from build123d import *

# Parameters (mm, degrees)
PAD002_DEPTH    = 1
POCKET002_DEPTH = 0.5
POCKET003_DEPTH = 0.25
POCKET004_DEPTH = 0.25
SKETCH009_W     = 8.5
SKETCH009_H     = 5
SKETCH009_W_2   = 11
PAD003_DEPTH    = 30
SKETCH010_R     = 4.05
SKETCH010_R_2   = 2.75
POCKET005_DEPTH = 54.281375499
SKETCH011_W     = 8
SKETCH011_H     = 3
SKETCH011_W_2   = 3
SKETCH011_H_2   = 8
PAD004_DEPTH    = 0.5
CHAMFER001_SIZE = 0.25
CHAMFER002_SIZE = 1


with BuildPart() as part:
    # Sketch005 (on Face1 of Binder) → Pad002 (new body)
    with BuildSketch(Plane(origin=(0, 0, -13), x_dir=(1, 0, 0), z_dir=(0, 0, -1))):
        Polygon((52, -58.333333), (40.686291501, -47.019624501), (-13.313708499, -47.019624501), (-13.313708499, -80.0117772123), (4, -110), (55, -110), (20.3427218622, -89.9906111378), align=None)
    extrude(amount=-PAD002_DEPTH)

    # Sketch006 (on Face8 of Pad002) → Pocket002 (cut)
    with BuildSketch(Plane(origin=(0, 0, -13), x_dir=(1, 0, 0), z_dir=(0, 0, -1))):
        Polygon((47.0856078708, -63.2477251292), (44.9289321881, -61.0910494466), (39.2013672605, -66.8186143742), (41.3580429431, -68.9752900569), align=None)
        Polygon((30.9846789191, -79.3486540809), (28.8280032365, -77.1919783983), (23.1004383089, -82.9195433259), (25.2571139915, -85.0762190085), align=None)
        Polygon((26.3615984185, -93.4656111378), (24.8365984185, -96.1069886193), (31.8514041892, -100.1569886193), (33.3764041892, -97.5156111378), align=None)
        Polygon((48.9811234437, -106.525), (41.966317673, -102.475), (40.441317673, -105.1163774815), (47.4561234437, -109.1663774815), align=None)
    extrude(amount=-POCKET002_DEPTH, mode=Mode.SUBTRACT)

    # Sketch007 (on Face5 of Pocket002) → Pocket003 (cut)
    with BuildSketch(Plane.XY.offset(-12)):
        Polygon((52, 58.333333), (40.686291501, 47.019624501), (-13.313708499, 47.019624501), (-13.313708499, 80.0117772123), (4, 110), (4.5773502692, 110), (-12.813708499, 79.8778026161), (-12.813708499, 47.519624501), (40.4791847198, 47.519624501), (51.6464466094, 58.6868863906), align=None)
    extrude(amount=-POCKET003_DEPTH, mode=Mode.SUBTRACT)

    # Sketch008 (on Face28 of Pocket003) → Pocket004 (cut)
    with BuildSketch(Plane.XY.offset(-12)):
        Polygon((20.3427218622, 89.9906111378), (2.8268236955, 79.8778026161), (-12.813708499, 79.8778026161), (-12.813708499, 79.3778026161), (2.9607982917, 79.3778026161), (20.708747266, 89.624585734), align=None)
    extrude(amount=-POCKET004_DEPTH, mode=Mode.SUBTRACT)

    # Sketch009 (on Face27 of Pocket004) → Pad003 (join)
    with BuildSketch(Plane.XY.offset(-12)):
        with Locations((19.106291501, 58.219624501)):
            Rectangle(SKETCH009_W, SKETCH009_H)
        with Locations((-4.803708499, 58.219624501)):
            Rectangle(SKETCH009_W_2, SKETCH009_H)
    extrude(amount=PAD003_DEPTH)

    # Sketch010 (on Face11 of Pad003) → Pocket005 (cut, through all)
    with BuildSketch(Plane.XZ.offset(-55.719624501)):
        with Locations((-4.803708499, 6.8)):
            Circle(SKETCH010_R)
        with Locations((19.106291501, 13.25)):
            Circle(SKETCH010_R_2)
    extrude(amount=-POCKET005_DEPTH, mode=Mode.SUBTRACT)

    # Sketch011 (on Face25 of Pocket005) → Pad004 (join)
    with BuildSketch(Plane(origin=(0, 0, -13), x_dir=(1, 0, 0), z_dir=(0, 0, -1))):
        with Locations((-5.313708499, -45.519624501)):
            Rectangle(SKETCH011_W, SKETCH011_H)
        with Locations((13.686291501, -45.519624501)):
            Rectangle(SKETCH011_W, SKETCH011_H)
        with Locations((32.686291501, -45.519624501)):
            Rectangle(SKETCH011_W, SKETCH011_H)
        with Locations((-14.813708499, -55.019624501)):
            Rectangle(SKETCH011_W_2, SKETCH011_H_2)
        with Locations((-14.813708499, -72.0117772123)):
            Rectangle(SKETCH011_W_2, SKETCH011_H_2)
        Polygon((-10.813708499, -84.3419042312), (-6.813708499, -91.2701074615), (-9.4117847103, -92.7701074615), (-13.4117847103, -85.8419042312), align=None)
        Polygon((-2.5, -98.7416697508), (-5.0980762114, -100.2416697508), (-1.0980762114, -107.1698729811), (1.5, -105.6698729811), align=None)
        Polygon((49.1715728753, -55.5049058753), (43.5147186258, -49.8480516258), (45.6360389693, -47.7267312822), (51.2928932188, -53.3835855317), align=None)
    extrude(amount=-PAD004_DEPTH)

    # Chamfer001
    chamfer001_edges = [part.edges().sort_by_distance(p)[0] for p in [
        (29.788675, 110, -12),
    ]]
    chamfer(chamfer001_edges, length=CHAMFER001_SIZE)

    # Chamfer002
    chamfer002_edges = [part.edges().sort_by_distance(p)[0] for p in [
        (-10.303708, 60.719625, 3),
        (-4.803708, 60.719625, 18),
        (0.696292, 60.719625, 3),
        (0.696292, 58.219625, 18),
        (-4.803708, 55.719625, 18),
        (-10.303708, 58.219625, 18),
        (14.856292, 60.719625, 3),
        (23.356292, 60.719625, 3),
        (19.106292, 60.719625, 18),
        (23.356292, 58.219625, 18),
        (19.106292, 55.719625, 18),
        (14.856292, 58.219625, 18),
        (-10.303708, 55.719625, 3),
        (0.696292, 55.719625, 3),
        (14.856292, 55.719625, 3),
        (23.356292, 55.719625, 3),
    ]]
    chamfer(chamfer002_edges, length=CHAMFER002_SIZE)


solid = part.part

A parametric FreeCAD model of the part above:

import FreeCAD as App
import Part
import Sketcher

V = App.Vector
Q = App.Units.Quantity


def edges_at(feature, points):
    """Names of the edges that pass closest to the given points."""
    edges = feature.Shape.Edges
    near = lambda p: min(range(len(edges)), key=lambda i: edges[i].distToShape(Part.Vertex(*p))[0])
    return sorted({f"Edge{near(p) + 1}" for p in points})


def add_polygon(sketch, points):
    """Adds a closed chain of lines whose ends are joined by coincident constraints."""
    first, n = sketch.GeometryCount, len(points)
    for a, b in zip(points, points[1:] + points[:1]):
        sketch.addGeometry(Part.LineSegment(App.Vector(*a, 0), App.Vector(*b, 0)), False)
    for i in range(n):
        sketch.addConstraint(Sketcher.Constraint("Coincident", first + i, 2, first + (i + 1) % n, 1))

doc = App.newDocument("Part")
params = doc.addObject("Spreadsheet::Sheet", "Params")
for row, (alias, value) in enumerate([
    ("sketch1_width", "54 mm"),
    ("sketch1_width2", "51 mm"),
    ("sketch1_length", "16 mm"),
    ("pad1_length", "1 mm"),
    ("sketch2_length", "8.1 mm"),
    ("sketch2_length2", "3.05 mm"),
    ("pocket1_length", "0.5 mm"),
    ("sketch3_width", "54 mm"),
    ("sketch3_length", "16 mm"),
    ("sketch3_length2", "0.5 mm"),
    ("pocket2_length", "0.25 mm"),
    ("sketch4_height", "0.5 mm"),
    ("pocket3_length", "0.25 mm"),
    ("sketch5_width", "11 mm"),
    ("sketch5_height", "5 mm"),
    ("sketch5_width2", "8.5 mm"),
    ("pad2_length", "30 mm"),
    ("sketch6_diameter", "8.1 mm"),
    ("sketch6_diameter2", "5.5 mm"),
    ("sketch7_width", "8 mm"),
    ("sketch7_width2", "3 mm"),
    ("sketch7_length", "8 mm"),
    ("sketch7_length2", "3 mm"),
    ("pad3_length", "0.5 mm"),
    ("chamfer_size", "0.25 mm"),
    ("chamfer2_size", "1 mm"),
], start=1):
    params.set(f"A{row}", alias)
    params.set(f"B{row}", "=" + value)
    params.setAlias(f"B{row}", alias)

body = doc.addObject("PartDesign::Body", "Body")

sketch1 = body.newObject("Sketcher::SketchObject", "Sketch")
sketch1.AttachmentSupport = (doc.getObject("XY_Plane"), [""])
sketch1.MapMode = "FlatFace"
sketch1.AttachmentOffset = App.Placement(V(0, 0, -13), App.Rotation())
add_polygon(sketch1, [(52, 58), (41, 47), (-13, 47), (-13, 80), (4, 110), (55, 110), (20, 90)])
sketch1.addConstraint([
    Sketcher.Constraint("Horizontal", 1),
    Sketcher.Constraint("Vertical", 2),
    Sketcher.Constraint("Horizontal", 4),
    Sketcher.Constraint("Perpendicular", 0, 6),
    Sketcher.Constraint("DistanceX", 1, 2, 1, 1, 54.0),
    Sketcher.Constraint("DistanceX", 4, 1, 4, 2, 51.0),
    Sketcher.Constraint("Angle", 0, Q("-135 deg")),
    Sketcher.Constraint("Angle", 3, Q("60 deg")),
    Sketcher.Constraint("Angle", 5, Q("-150 deg")),
    Sketcher.Constraint("Distance", 0, 16.0),
    Sketcher.Constraint("DistanceX", -1, 1, 3, 2, 4.0),
    Sketcher.Constraint("DistanceY", -1, 1, 3, 2, 110.0),
    Sketcher.Constraint("DistanceX", -1, 1, 6, 2, 52.0),
    Sketcher.Constraint("DistanceY", 2, 1, 2, 2, 32.992153),
])
sketch1.setExpression("Constraints[11]", "Params.sketch1_width")
sketch1.setExpression("Constraints[12]", "Params.sketch1_width2")
sketch1.setExpression("Constraints[16]", "Params.sketch1_length")
pad1 = body.newObject("PartDesign::Pad", "Pad")
pad1.Profile = sketch1
pad1.setExpression("Length", "Params.pad1_length")

sketch2 = body.newObject("Sketcher::SketchObject", "Sketch001")
sketch2.AttachmentSupport = (doc.getObject("XY_Plane"), [""])
sketch2.MapMode = "FlatFace"
sketch2.AttachmentOffset = App.Placement(V(0, 0, -13), App.Rotation())
add_polygon(sketch2, [(47.1, 63.2), (44.9, 61.1), (39.2, 66.8), (41.4, 69)])
add_polygon(sketch2, [(31, 79.3), (28.8, 77.2), (23.1, 82.9), (25.3, 85.1)])
add_polygon(sketch2, [(26.4, 93.5), (24.8, 96.1), (31.9, 100.2), (33.4, 97.5)])
add_polygon(sketch2, [(49, 106.5), (42, 102.5), (40.4, 105.1), (47.5, 109.2)])
sketch2.addConstraint([
    Sketcher.Constraint("Perpendicular", 0, 1),
    Sketcher.Constraint("Perpendicular", 1, 2),
    Sketcher.Constraint("Perpendicular", 2, 3),
    Sketcher.Constraint("Perpendicular", 3, 4),
    Sketcher.Constraint("Perpendicular", 4, 5),
    Sketcher.Constraint("Perpendicular", 5, 6),
    Sketcher.Constraint("Perpendicular", 6, 7),
    Sketcher.Constraint("Perpendicular", 8, 9),
    Sketcher.Constraint("Perpendicular", 9, 10),
    Sketcher.Constraint("Perpendicular", 10, 11),
    Sketcher.Constraint("Parallel", 11, 12),
    Sketcher.Constraint("Perpendicular", 12, 13),
    Sketcher.Constraint("Perpendicular", 13, 14),
    Sketcher.Constraint("Perpendicular", 14, 15),
    Sketcher.Constraint("Equal", 2, 4),
    Sketcher.Constraint("Equal", 3, 5),
    Sketcher.Constraint("Equal", 6, 8),
    Sketcher.Constraint("Equal", 7, 9),
    Sketcher.Constraint("Equal", 11, 12),
    Sketcher.Constraint("Equal", 10, 13),
    Sketcher.Constraint("Angle", 0, Q("-135 deg")),
    Sketcher.Constraint("Angle", 8, Q("120 deg")),
    Sketcher.Constraint("Distance", 1, 8.1),
    Sketcher.Constraint("Distance", 0, 3.05),
    Sketcher.Constraint("DistanceY", -1, 1, 12, 2, 102.475),
    Sketcher.Constraint("DistanceX", -1, 1, 8, 2, 24.836598),
    Sketcher.Constraint("DistanceY", 2, 2, 8, 2, 27.131699),
    Sketcher.Constraint("DistanceX", 4, 2, 9, 2, 3.023401),
    Sketcher.Constraint("DistanceY", -1, 1, 0, 2, 61.091049),
    Sketcher.Constraint("DistanceY", -1, 1, 4, 2, 77.191978),
    Sketcher.Constraint("DistanceX", 4, 2, 2, 2, 12.53004),
    Sketcher.Constraint("DistanceX", 11, 2, 12, 2, 15.604719),
])
sketch2.setExpression("Constraints[38]", "Params.sketch2_length")
sketch2.setExpression("Constraints[39]", "Params.sketch2_length2")
pocket1 = body.newObject("PartDesign::Pocket", "Pocket")
pocket1.Profile = sketch2
pocket1.setExpression("Length", "Params.pocket1_length")
pocket1.Reversed = True

sketch3 = body.newObject("Sketcher::SketchObject", "Sketch002")
sketch3.AttachmentSupport = (doc.getObject("XY_Plane"), [""])
sketch3.MapMode = "FlatFace"
sketch3.AttachmentOffset = App.Placement(V(0, 0, -12), App.Rotation())
add_polygon(sketch3, [(40.7, 47), (52, 58.3), (51.6, 58.7), (40.5, 47.5), (-12.8, 47.5), (-12.8, 79.9), (4.6, 110), (4, 110), (-13.3, 80), (-13.3, 47)])
sketch3.addConstraint([
    Sketcher.Constraint("Horizontal", 3),
    Sketcher.Constraint("Vertical", 4),
    Sketcher.Constraint("Horizontal", 6),
    Sketcher.Constraint("Vertical", 8),
    Sketcher.Constraint("Horizontal", 9),
    Sketcher.Constraint("Perpendicular", 0, 1),
    Sketcher.Constraint("Perpendicular", 1, 2),
    Sketcher.Constraint("Parallel", 5, 7),
    Sketcher.Constraint("DistanceX", 9, 1, 9, 2, 54.0),
    Sketcher.Constraint("Angle", 0, Q("45 deg")),
    Sketcher.Constraint("Angle", 5, Q("60 deg")),
    Sketcher.Constraint("Distance", 0, 16.0),
    Sketcher.Constraint("DistanceX", -1, 1, 0, 2, 52.0),
    Sketcher.Constraint("DistanceY", -1, 1, 5, 2, 110.0),
    Sketcher.Constraint("DistanceX", -1, 1, 6, 2, 4.0),
    Sketcher.Constraint("Distance", 1, 0.5),
    Sketcher.Constraint("DistanceX", 7, 2, 4, 2, 0.5),
    Sketcher.Constraint("DistanceY", 8, 2, 3, 2, 0.5),
    Sketcher.Constraint("DistanceX", 6, 2, 6, 1, 0.57735),
    Sketcher.Constraint("DistanceY", 4, 1, 4, 2, 32.358178),
])
sketch3.setExpression("Constraints[18]", "Params.sketch3_width")
sketch3.setExpression("Constraints[21]", "Params.sketch3_length")
sketch3.setExpression("Constraints[25]", "Params.sketch3_length2")
pocket2 = body.newObject("PartDesign::Pocket", "Pocket001")
pocket2.Profile = sketch3
pocket2.setExpression("Length", "Params.pocket2_length")

sketch4 = body.newObject("Sketcher::SketchObject", "Sketch003")
sketch4.AttachmentSupport = (doc.getObject("XY_Plane"), [""])
sketch4.MapMode = "FlatFace"
sketch4.AttachmentOffset = App.Placement(V(0, 0, -12), App.Rotation())
add_polygon(sketch4, [(20.3, 90), (2.8, 79.9), (-12.8, 79.9), (-12.8, 79.4), (3, 79.4), (20.7, 89.6)])
sketch4.addConstraint([
    Sketcher.Constraint("Horizontal", 1),
    Sketcher.Constraint("Vertical", 2),
    Sketcher.Constraint("Horizontal", 3),
    Sketcher.Constraint("Parallel", 0, 4),
    Sketcher.Constraint("Angle", 0, Q("-150 deg")),
    Sketcher.Constraint("Angle", 5, Q("135 deg")),
    Sketcher.Constraint("DistanceY", 2, 2, 2, 1, 0.5),
    Sketcher.Constraint("DistanceX", -1, 1, 3, 2, 2.960798),
    Sketcher.Constraint("DistanceX", 0, 2, 5, 2, 17.515898),
    Sketcher.Constraint("Distance", 5, 0.517638),
    Sketcher.Constraint("DistanceX", 1, 2, 1, 1, 15.640532),
    Sketcher.Constraint("DistanceY", -1, 1, 5, 2, 89.990611),
])
sketch4.setExpression("Constraints[12]", "Params.sketch4_height")
pocket3 = body.newObject("PartDesign::Pocket", "Pocket002")
pocket3.Profile = sketch4
pocket3.setExpression("Length", "Params.pocket3_length")

sketch5 = body.newObject("Sketcher::SketchObject", "Sketch004")
sketch5.AttachmentSupport = (doc.getObject("XY_Plane"), [""])
sketch5.MapMode = "FlatFace"
sketch5.AttachmentOffset = App.Placement(V(0, 0, -12), App.Rotation())
add_polygon(sketch5, [(15, 61), (15, 56), (23, 56), (23, 61)])
add_polygon(sketch5, [(-10, 61), (-10, 56), (1, 56), (1, 61)])
sketch5.addConstraint([
    Sketcher.Constraint("Vertical", 0),
    Sketcher.Constraint("Horizontal", 1),
    Sketcher.Constraint("Vertical", 2),
    Sketcher.Constraint("Horizontal", 3),
    Sketcher.Constraint("Vertical", 4),
    Sketcher.Constraint("Horizontal", 5),
    Sketcher.Constraint("Vertical", 6),
    Sketcher.Constraint("Horizontal", 7),
    Sketcher.Constraint("Horizontal", 1, 2, 4, 2),
    Sketcher.Constraint("Horizontal", 3, 2, 6, 2),
    Sketcher.Constraint("DistanceX", 5, 1, 5, 2, 11.0),
    Sketcher.Constraint("DistanceY", 0, 2, 0, 1, 5.0),
    Sketcher.Constraint("DistanceX", 1, 1, 1, 2, 8.5),
    Sketcher.Constraint("DistanceX", 4, 2, 0, 2, 25.16),
    Sketcher.Constraint("DistanceX", -1, 1, 0, 2, 14.856292),
    Sketcher.Constraint("DistanceY", -1, 1, 0, 2, 55.719625),
])
sketch5.setExpression("Constraints[18]", "Params.sketch5_width")
sketch5.setExpression("Constraints[19]", "Params.sketch5_height")
sketch5.setExpression("Constraints[20]", "Params.sketch5_width2")
pad2 = body.newObject("PartDesign::Pad", "Pad001")
pad2.Profile = sketch5
pad2.setExpression("Length", "Params.pad2_length")

sketch6 = body.newObject("Sketcher::SketchObject", "Sketch005")
sketch6.AttachmentSupport = (doc.getObject("XZ_Plane"), [""])
sketch6.MapMode = "FlatFace"
sketch6.AttachmentOffset = App.Placement(V(0, 0, -55.719625), App.Rotation())
sketch6.addGeometry([
    Part.Circle(V(-4.8, 6.8, 0), V(0, 0, 1), 4),
    Part.Circle(V(19.1, 13.2, 0), V(0, 0, 1), 2.8),
], False)
sketch6.addConstraint([
    Sketcher.Constraint("Diameter", 0, 8.1),
    Sketcher.Constraint("Diameter", 1, 5.5),
    Sketcher.Constraint("DistanceY", -1, 1, 0, 3, 6.8),
    Sketcher.Constraint("DistanceY", -1, 1, 1, 3, 13.25),
    Sketcher.Constraint("DistanceX", 0, 3, 1, 3, 23.91),
    Sketcher.Constraint("DistanceX", 0, 3, -1, 1, 4.803708),
])
sketch6.setExpression("Constraints[0]", "Params.sketch6_diameter")
sketch6.setExpression("Constraints[1]", "Params.sketch6_diameter2")
pocket4 = body.newObject("PartDesign::Pocket", "Pocket003")
pocket4.Profile = sketch6
pocket4.Type = "ThroughAll"

sketch7 = body.newObject("Sketcher::SketchObject", "Sketch006")
sketch7.AttachmentSupport = (doc.getObject("XY_Plane"), [""])
sketch7.MapMode = "FlatFace"
sketch7.AttachmentOffset = App.Placement(V(0, 0, -13), App.Rotation())
add_polygon(sketch7, [(-9.3, 44), (-9.3, 47), (-1.3, 47), (-1.3, 44)])
add_polygon(sketch7, [(9.7, 44), (9.7, 47), (17.7, 47), (17.7, 44)])
add_polygon(sketch7, [(28.7, 44), (28.7, 47), (36.7, 47), (36.7, 44)])
add_polygon(sketch7, [(-16.3, 51), (-16.3, 59), (-13.3, 59), (-13.3, 51)])
add_polygon(sketch7, [(-16.3, 68), (-16.3, 76), (-13.3, 76), (-13.3, 68)])
add_polygon(sketch7, [(-6.8, 91.3), (-10.8, 84.3), (-13.4, 85.8), (-9.4, 92.8)])
add_polygon(sketch7, [(-2.5, 98.7), (-5.1, 100.2), (-1.1, 107.2), (1.5, 105.7)])
add_polygon(sketch7, [(43.5, 49.8), (49.2, 55.5), (51.3, 53.4), (45.6, 47.7)])
sketch7.addConstraint([
    Sketcher.Constraint("Vertical", 0),
    Sketcher.Constraint("Horizontal", 1),
    Sketcher.Constraint("Vertical", 2),
    Sketcher.Constraint("Horizontal", 3),
    Sketcher.Constraint("Vertical", 4),
    Sketcher.Constraint("Horizontal", 5),
    Sketcher.Constraint("Vertical", 6),
    Sketcher.Constraint("Horizontal", 7),
    Sketcher.Constraint("Vertical", 8),
    Sketcher.Constraint("Horizontal", 9),
    Sketcher.Constraint("Vertical", 10),
    Sketcher.Constraint("Horizontal", 11),
    Sketcher.Constraint("Vertical", 12),
    Sketcher.Constraint("Horizontal", 13),
    Sketcher.Constraint("Vertical", 14),
    Sketcher.Constraint("Horizontal", 15),
    Sketcher.Constraint("Vertical", 16),
    Sketcher.Constraint("Horizontal", 17),
    Sketcher.Constraint("Vertical", 18),
    Sketcher.Constraint("Horizontal", 19),
    Sketcher.Constraint("Perpendicular", 20, 21),
    Sketcher.Constraint("Perpendicular", 21, 22),
    Sketcher.Constraint("Perpendicular", 22, 23),
    Sketcher.Constraint("Parallel", 23, 24),
    Sketcher.Constraint("Perpendicular", 24, 25),
    Sketcher.Constraint("Perpendicular", 25, 26),
    Sketcher.Constraint("Perpendicular", 26, 27),
    Sketcher.Constraint("Perpendicular", 28, 29),
    Sketcher.Constraint("Perpendicular", 29, 30),
    Sketcher.Constraint("Perpendicular", 30, 31),
    Sketcher.Constraint("Horizontal", 1, 2, 4, 2),
    Sketcher.Constraint("Horizontal", 3, 2, 6, 2),
    Sketcher.Constraint("Horizontal", 5, 2, 8, 2),
    Sketcher.Constraint("Horizontal", 7, 2, 10, 2),
    Sketcher.Constraint("Vertical", 15, 2, 16, 2),
    Sketcher.Constraint("Vertical", 14, 2, 17, 2),
    Sketcher.Constraint("Equal", 3, 5),
    Sketcher.Constraint("Equal", 7, 9),
    Sketcher.Constraint("Equal", 19, 0),
    Sketcher.Constraint("Equal", 11, 12),
    Sketcher.Constraint("Equal", 14, 16),
    Sketcher.Constraint("Equal", 23, 24),
    Sketcher.Constraint("Equal", 22, 25),
    Sketcher.Constraint("Equal", 27, 28),
    Sketcher.Constraint("Equal", 26, 29),
    Sketcher.Constraint("DistanceX", 1, 1, 1, 2, 8.0),
    Sketcher.Constraint("DistanceX", 13, 1, 13, 2, 3.0),
    Sketcher.Constraint("Angle", 20, Q("-120 deg")),
    Sketcher.Constraint("Angle", 28, Q("45 deg")),
    Sketcher.Constraint("Distance", 20, 8.0),
    Sketcher.Constraint("Distance", 21, 3.0),
    Sketcher.Constraint("DistanceX", 1, 2, 4, 2, 11.0),
    Sketcher.Constraint("DistanceX", 5, 2, 8, 2, 11.0),
    Sketcher.Constraint("DistanceX", 12, 2, 0, 2, 7.0),
    Sketcher.Constraint("DistanceY", 0, 2, 12, 2, 12.0),
    Sketcher.Constraint("DistanceX", -1, 1, 26, 2, 1.5),
    Sketcher.Constraint("DistanceX", 17, 2, 20, 2, 2.5),
    Sketcher.Constraint("DistanceX", 9, 2, 29, 2, 14.606602),
    Sketcher.Constraint("DistanceX", 0, 2, -1, 1, 9.313708),
    Sketcher.Constraint("DistanceY", -1, 1, 24, 2, 100.24167),
    Sketcher.Constraint("DistanceY", -1, 1, 30, 2, 47.726731),
    Sketcher.Constraint("DistanceY", 13, 2, 20, 2, 25.32228),
    Sketcher.Constraint("DistanceY", 17, 2, 22, 2, 16.75833),
    Sketcher.Constraint("DistanceY", 21, 2, 25, 2, 21.327969),
])
sketch7.setExpression("Constraints[77]", "Params.sketch7_width")
sketch7.setExpression("Constraints[78]", "Params.sketch7_width2")
sketch7.setExpression("Constraints[81]", "Params.sketch7_length")
sketch7.setExpression("Constraints[82]", "Params.sketch7_length2")
pad3 = body.newObject("PartDesign::Pad", "Pad002")
pad3.Profile = sketch7
pad3.setExpression("Length", "Params.pad3_length")
doc.recompute()

chamfer = body.newObject("PartDesign::Chamfer", "Chamfer")
chamfer.Base = (pad3, edges_at(pad3, [(29.789, 110, -12)]))
chamfer.setExpression("Size", "Params.chamfer_size")
doc.recompute()

chamfer2 = body.newObject("PartDesign::Chamfer", "Chamfer001")
chamfer2.Base = (chamfer, edges_at(chamfer, [
    (-10.304, 60.72, 3),
    (-4.804, 60.72, 18),
    (0.696, 60.72, 3),
    (0.696, 58.22, 18),
    (-4.804, 55.72, 18),
    (-10.304, 58.22, 18),
    (14.856, 60.72, 3),
    (23.356, 60.72, 3),
    (19.106, 60.72, 18),
    (23.356, 58.22, 18),
    (19.106, 55.72, 18),
    (14.856, 58.22, 18),
    (-10.304, 55.72, 3),
    (0.696, 55.72, 3),
    (14.856, 55.72, 3),
    (23.356, 55.72, 3),
]))
chamfer2.setExpression("Size", "Params.chamfer2_size")

doc.recompute()
